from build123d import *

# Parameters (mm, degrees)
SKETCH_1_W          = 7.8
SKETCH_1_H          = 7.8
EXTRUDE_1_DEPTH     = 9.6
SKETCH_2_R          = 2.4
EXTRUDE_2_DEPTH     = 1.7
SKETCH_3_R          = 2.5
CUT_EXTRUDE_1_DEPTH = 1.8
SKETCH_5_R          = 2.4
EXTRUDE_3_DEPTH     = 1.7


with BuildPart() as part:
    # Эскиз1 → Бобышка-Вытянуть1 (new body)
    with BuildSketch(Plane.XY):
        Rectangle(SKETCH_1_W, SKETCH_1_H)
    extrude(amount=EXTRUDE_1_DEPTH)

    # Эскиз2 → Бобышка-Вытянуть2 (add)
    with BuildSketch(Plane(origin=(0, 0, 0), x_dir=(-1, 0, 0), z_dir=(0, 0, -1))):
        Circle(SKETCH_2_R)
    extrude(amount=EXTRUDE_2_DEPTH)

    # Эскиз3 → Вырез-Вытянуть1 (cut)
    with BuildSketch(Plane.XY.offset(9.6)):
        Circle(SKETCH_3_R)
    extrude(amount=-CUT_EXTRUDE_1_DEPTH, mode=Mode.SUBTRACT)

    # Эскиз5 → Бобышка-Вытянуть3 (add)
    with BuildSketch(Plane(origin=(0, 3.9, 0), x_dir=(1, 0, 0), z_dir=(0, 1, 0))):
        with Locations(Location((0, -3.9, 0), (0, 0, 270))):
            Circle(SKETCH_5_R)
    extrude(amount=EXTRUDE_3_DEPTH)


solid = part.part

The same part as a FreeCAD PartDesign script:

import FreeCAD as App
import Part
import Sketcher
Q = App.Units.Quantity

doc = App.newDocument("Part")
params = doc.addObject("Spreadsheet::Sheet", "Params")
for row, (alias, value) in enumerate([
    ("sketch1_width", "7.8 mm"),
    ("pad1_length", "9.6 mm"),
    ("sketch2_diameter", "4.8 mm"),
    ("pad2_length", "1.7 mm"),
    ("sketch3_diameter", "5 mm"),
    ("pocket1_length", "1.8 mm"),
    ("sketch4_diameter", "4.8 mm"),
    ("pad3_length", "1.7 mm"),
], start=1):
    params.set(f"A{row}", alias)
    params.set(f"B{row}", "=" + value)
    params.setAlias(f"B{row}", alias)

body = doc.addObject("PartDesign::Body", "Body")

# Sketch on XY plane
sketch1 = body.newObject("Sketcher::SketchObject", "Sketch")
sketch1.AttachmentSupport = (doc.getObject("XY_Plane"), [""])
sketch1.MapMode = "FlatFace"
sketch1.addGeometry([
    Part.LineSegment(App.Vector(-3.9, 3.9, 0), App.Vector(-3.9, -3.9, 0)),
    Part.LineSegment(App.Vector(-3.9, -3.9, 0), App.Vector(3.9, -3.9, 0)),
    Part.LineSegment(App.Vector(3.9, -3.9, 0), App.Vector(3.9, 3.9, 0)),
    Part.LineSegment(App.Vector(3.9, 3.9, 0), App.Vector(-3.9, 3.9, 0)),
], False)
sketch1.addConstraint([
    Sketcher.Constraint("Coincident", 0, 2, 1, 1),
    Sketcher.Constraint("Coincident", 1, 2, 2, 1),
    Sketcher.Constraint("Coincident", 2, 2, 3, 1),
    Sketcher.Constraint("Coincident", 3, 2, 0, 1),
    Sketcher.Constraint("Vertical", 0),
    Sketcher.Constraint("Horizontal", 1),
    Sketcher.Constraint("Vertical", 2),
    Sketcher.Constraint("Horizontal", 3),
    Sketcher.Constraint("Symmetric", 0, 2, 2, 2, -1, 1),
    Sketcher.Constraint("Equal", 3, 0),
    Sketcher.Constraint("DistanceX", 1, 1, 1, 2, Q("7.8 mm")),
])
sketch1.setExpression("Constraints[10]", "Params.sketch1_width")
pad1 = body.newObject("PartDesign::Pad", "Pad")
pad1.Profile = sketch1
pad1.setExpression("Length", "Params.pad1_length")

# Sketch on XY plane
sketch2 = body.newObject("Sketcher::SketchObject", "Sketch001")
sketch2.AttachmentSupport = (doc.getObject("XY_Plane"), [""])
sketch2.MapMode = "FlatFace"
sketch2.addGeometry(Part.Circle(App.Vector(0, 0, 0), App.Vector(0, 0, 1), 2.4), False)
sketch2.addConstraint([
    Sketcher.Constraint("Coincident", 0, 3, -1, 1),
    Sketcher.Constraint("Diameter", 0, Q("4.8 mm")),
])
sketch2.setExpression("Constraints[1]", "Params.sketch2_diameter")
pad2 = body.newObject("PartDesign::Pad", "Pad001")
pad2.Profile = sketch2
pad2.setExpression("Length", "Params.pad2_length")
pad2.Reversed = True

# Sketch on XY plane
sketch3 = body.newObject("Sketcher::SketchObject", "Sketch002")
sketch3.AttachmentSupport = (doc.getObject("XY_Plane"), [""])
sketch3.MapMode = "FlatFace"
sketch3.AttachmentOffset = App.Placement(App.Vector(0, 0, 9.6), App.Rotation())
sketch3.addGeometry(Part.Circle(App.Vector(0, 0, 0), App.Vector(0, 0, 1), 2.5), False)
sketch3.addConstraint([
    Sketcher.Constraint("Coincident", 0, 3, -1, 1),
    Sketcher.Constraint("Diameter", 0, Q("5 mm")),
])
sketch3.setExpression("Constraints[1]", "Params.sketch3_diameter")
pocket1 = body.newObject("PartDesign::Pocket", "Pocket")
pocket1.Profile = sketch3
pocket1.setExpression("Length", "Params.pocket1_length")

# Sketch on XZ plane
sketch4 = body.newObject("Sketcher::SketchObject", "Sketch003")
sketch4.AttachmentSupport = (doc.getObject("XZ_Plane"), [""])
sketch4.MapMode = "FlatFace"
sketch4.AttachmentOffset = App.Placement(App.Vector(0, 0, -3.9), App.Rotation())
sketch4.addGeometry(Part.Circle(App.Vector(0, 3.9, 0), App.Vector(0, 0, 1), 2.4), False)
sketch4.addConstraint([
    Sketcher.Constraint("PointOnObject", 0, 3, -2),
    Sketcher.Constraint("Diameter", 0, Q("4.8 mm")),
    Sketcher.Constraint("DistanceY", -1, 1, 0, 3, Q("3.9 mm")),
])
sketch4.setExpression("Constraints[1]", "Params.sketch4_diameter")
pad3 = body.newObject("PartDesign::Pad", "Pad002")
pad3.Profile = sketch4
pad3.setExpression("Length", "Params.pad3_length")
pad3.Reversed = True

doc.recompute()
